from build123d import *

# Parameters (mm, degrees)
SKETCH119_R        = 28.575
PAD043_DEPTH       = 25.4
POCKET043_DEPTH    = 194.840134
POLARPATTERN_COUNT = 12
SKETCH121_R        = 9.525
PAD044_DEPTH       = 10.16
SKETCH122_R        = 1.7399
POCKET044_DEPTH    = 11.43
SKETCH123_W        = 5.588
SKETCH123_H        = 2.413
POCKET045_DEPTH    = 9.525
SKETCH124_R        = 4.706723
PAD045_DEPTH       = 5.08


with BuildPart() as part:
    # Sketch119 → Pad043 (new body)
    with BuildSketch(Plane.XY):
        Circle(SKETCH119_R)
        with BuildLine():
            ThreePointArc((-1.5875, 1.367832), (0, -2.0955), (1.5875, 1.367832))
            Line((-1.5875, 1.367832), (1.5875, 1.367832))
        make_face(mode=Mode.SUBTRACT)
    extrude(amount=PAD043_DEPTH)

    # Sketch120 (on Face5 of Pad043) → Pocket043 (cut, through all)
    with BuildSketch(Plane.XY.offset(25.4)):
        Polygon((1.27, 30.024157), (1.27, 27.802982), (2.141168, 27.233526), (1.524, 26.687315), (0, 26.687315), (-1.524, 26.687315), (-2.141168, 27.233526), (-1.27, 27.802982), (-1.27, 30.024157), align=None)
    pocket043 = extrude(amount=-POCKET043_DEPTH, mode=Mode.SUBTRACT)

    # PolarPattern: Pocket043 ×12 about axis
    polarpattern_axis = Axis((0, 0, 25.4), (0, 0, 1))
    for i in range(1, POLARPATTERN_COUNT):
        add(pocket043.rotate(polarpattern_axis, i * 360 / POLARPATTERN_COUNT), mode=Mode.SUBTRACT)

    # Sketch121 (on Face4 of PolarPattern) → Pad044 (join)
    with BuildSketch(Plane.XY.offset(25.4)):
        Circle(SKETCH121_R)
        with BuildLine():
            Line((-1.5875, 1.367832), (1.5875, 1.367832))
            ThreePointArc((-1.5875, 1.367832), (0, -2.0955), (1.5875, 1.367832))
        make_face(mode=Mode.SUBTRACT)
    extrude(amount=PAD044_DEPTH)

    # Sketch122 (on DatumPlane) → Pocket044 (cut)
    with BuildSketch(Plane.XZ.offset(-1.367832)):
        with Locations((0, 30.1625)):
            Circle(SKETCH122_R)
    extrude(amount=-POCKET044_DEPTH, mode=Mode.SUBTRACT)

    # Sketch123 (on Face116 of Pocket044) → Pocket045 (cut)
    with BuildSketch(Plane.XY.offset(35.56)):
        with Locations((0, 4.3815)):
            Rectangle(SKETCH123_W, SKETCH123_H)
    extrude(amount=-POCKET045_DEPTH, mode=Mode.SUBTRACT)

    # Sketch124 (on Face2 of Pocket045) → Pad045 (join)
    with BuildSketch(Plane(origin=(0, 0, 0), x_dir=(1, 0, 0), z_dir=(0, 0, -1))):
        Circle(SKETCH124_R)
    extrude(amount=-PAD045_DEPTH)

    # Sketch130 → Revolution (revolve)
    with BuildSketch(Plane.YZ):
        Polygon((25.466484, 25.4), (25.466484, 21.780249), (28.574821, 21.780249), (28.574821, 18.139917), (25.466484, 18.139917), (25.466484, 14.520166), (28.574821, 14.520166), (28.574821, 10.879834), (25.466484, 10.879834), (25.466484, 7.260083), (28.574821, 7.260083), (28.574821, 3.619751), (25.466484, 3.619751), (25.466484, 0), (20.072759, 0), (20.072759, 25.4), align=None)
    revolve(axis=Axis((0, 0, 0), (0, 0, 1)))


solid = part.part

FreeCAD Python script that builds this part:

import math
import FreeCAD as App
import Part
import Sketcher
Q = App.Units.Quantity

doc = App.newDocument("Part")
body = doc.addObject("PartDesign::Body", "Body")

sketch1 = body.newObject("Sketcher::SketchObject", "Sketch")
sketch1.AttachmentSupport = (doc.getObject("XY_Plane"), [""])
sketch1.MapMode = "FlatFace"
sketch1.addGeometry([
    Part.Circle(App.Vector(0, 0, 0), App.Vector(0, 0, 1), 28.6),
    Part.ArcOfCircle(Part.Circle(App.Vector(0, 0, 0), App.Vector(0, 0, 1), 2.1), math.radians(139), math.radians(401)),
    Part.LineSegment(App.Vector(-1.6, 1.4, 0), App.Vector(1.6, 1.4, 0)),
], False)
sketch1.addConstraint([
    Sketcher.Constraint("Coincident", 1, 1, 2, 1),
    Sketcher.Constraint("Coincident", 2, 2, 1, 2),
    Sketcher.Constraint("Horizontal", 2),
    Sketcher.Constraint("Coincident", 0, 3, -1, 1),
    Sketcher.Constraint("Coincident", 1, 3, -1, 1),
    Sketcher.Constraint("Diameter", 0, Q("2.25 in")),
    Sketcher.Constraint("Radius", 1, Q("0.0825 in")),
    Sketcher.Constraint("DistanceX", 2, 1, 2, 2, Q("0.125 in")),
])
pad1 = body.newObject("PartDesign::Pad", "Pad")
pad1.Profile = sketch1
pad1.Length = Q("1 in")

sketch2 = body.newObject("Sketcher::SketchObject", "Sketch001")
sketch2.AttachmentSupport = (doc.getObject("XY_Plane"), [""])
sketch2.MapMode = "FlatFace"
sketch2.AttachmentOffset = App.Placement(App.Vector(0, 0, 1 * 25.4), App.Rotation())
sketch2.addGeometry([
    Part.LineSegment(App.Vector(1.3, 27.8, 0), App.Vector(1.3, 30, 0)),
    Part.LineSegment(App.Vector(1.3, 30, 0), App.Vector(-1.3, 30, 0)),
    Part.LineSegment(App.Vector(-1.3, 30, 0), App.Vector(-1.3, 27.8, 0)),
    Part.LineSegment(App.Vector(-1.3, 27.8, 0), App.Vector(-2.1, 27.2, 0)),
    Part.LineSegment(App.Vector(-2.1, 27.2, 0), App.Vector(-1.5, 26.7, 0)),
    Part.LineSegment(App.Vector(-1.5, 26.7, 0), App.Vector(1.5, 26.7, 0)),
    Part.LineSegment(App.Vector(1.5, 26.7, 0), App.Vector(2.1, 27.2, 0)),
    Part.LineSegment(App.Vector(2.1, 27.2, 0), App.Vector(1.3, 27.8, 0)),
], False)
sketch2.addConstraint([
    Sketcher.Constraint("Coincident", 0, 2, 1, 1),
    Sketcher.Constraint("Coincident", 1, 2, 2, 1),
    Sketcher.Constraint("Coincident", 2, 2, 3, 1),
    Sketcher.Constraint("Coincident", 3, 2, 4, 1),
    Sketcher.Constraint("Coincident", 4, 2, 5, 1),
    Sketcher.Constraint("Coincident", 5, 2, 6, 1),
    Sketcher.Constraint("Coincident", 6, 2, 7, 1),
    Sketcher.Constraint("Coincident", 7, 2, 0, 1),
    Sketcher.Constraint("Vertical", 0),
    Sketcher.Constraint("Horizontal", 1),
    Sketcher.Constraint("Vertical", 2),
    Sketcher.Constraint("Horizontal", 5),
    Sketcher.Constraint("Symmetric", 3, 2, 6, 2, -2),
    Sketcher.Constraint("Symmetric", 2, 2, 7, 2, -2),
    Sketcher.Constraint("Equal", 4, 6),
    Sketcher.Constraint("DistanceX", 1, 2, 1, 1, Q("0.1 in")),
    Sketcher.Constraint("DistanceX", 5, 1, 5, 2, Q("0.12 in")),
    Sketcher.Constraint("Distance", 4, 0.824162),
    Sketcher.Constraint("DistanceY", 0, 1, 0, 2, 2.221175),
    Sketcher.Constraint("DistanceY", -1, 1, 2, 2, 27.802982),
    Sketcher.Constraint("DistanceX", 3, 2, -1, 1, 2.141168),
    Sketcher.Constraint("DistanceY", 3, 2, 1, 2, 2.790631),
])
pocket1 = body.newObject("PartDesign::Pocket", "Pocket")
pocket1.Profile = sketch2
pocket1.Type = "ThroughAll"
doc.recompute()

polarpattern = body.newObject("PartDesign::PolarPattern", "PolarPattern")
polarpattern.Originals = [pocket1]
polarpattern.Axis = (doc.getObject("Z_Axis"), [""])
polarpattern.Angle = 360
polarpattern.Occurrences = 12
body.Tip = polarpattern

sketch3 = body.newObject("Sketcher::SketchObject", "Sketch002")
sketch3.AttachmentSupport = (doc.getObject("XY_Plane"), [""])
sketch3.MapMode = "FlatFace"
sketch3.AttachmentOffset = App.Placement(App.Vector(0, 0, 1 * 25.4), App.Rotation())
sketch3.addGeometry([
    Part.Circle(App.Vector(0, 0, 0), App.Vector(0, 0, 1), 9.5),
    Part.ArcOfCircle(Part.Circle(App.Vector(0, 0, 0), App.Vector(0, 0, 1), 2.1), math.radians(139), math.radians(401)),
    Part.LineSegment(App.Vector(-1.6, 1.4, 0), App.Vector(1.6, 1.4, 0)),
], False)
sketch3.addConstraint([
    Sketcher.Constraint("Coincident", 1, 1, 2, 1),
    Sketcher.Constraint("Coincident", 2, 2, 1, 2),
    Sketcher.Constraint("Horizontal", 2),
    Sketcher.Constraint("Coincident", 0, 3, -1, 1),
    Sketcher.Constraint("Coincident", 1, 3, -1, 1),
    Sketcher.Constraint("Diameter", 0, Q("0.75 in")),
    Sketcher.Constraint("Radius", 1, Q("0.0825 in")),
    Sketcher.Constraint("DistanceX", 2, 1, 2, 2, Q("0.125 in")),
])
pad2 = body.newObject("PartDesign::Pad", "Pad001")
pad2.Profile = sketch3
pad2.Length = Q("0.4 in")

sketch4 = body.newObject("Sketcher::SketchObject", "Sketch003")
sketch4.AttachmentSupport = (doc.getObject("XZ_Plane"), [""])
sketch4.MapMode = "FlatFace"
sketch4.AttachmentOffset = App.Placement(App.Vector(0, 0, -1.367832), App.Rotation())
sketch4.addGeometry(Part.Circle(App.Vector(0, 30.2, 0), App.Vector(0, 0, 1), 1.7), False)
sketch4.addConstraint([
    Sketcher.Constraint("PointOnObject", 0, 3, -2),
    Sketcher.Constraint("Diameter", 0, Q("0.137 in")),
    Sketcher.Constraint("DistanceY", -1, 1, 0, 3, Q("1.1875 in")),
])
pocket2 = body.newObject("PartDesign::Pocket", "Pocket001")
pocket2.Profile = sketch4
pocket2.Length = Q("0.45 in")

sketch5 = body.newObject("Sketcher::SketchObject", "Sketch004")
sketch5.AttachmentSupport = (doc.getObject("XY_Plane"), [""])
sketch5.MapMode = "FlatFace"
sketch5.AttachmentOffset = App.Placement(App.Vector(0, 0, 1.4 * 25.4), App.Rotation())
sketch5.addGeometry([
    Part.LineSegment(App.Vector(-2.8, 5.6, 0), App.Vector(-2.8, 3.2, 0)),
    Part.LineSegment(App.Vector(-2.8, 3.2, 0), App.Vector(2.8, 3.2, 0)),
    Part.LineSegment(App.Vector(2.8, 3.2, 0), App.Vector(2.8, 5.6, 0)),
    Part.LineSegment(App.Vector(2.8, 5.6, 0), App.Vector(-2.8, 5.6, 0)),
], False)
sketch5.addConstraint([
    Sketcher.Constraint("Coincident", 0, 2, 1, 1),
    Sketcher.Constraint("Coincident", 1, 2, 2, 1),
    Sketcher.Constraint("Coincident", 2, 2, 3, 1),
    Sketcher.Constraint("Coincident", 3, 2, 0, 1),
    Sketcher.Constraint("Vertical", 0),
    Sketcher.Constraint("Horizontal", 1),
    Sketcher.Constraint("Vertical", 2),
    Sketcher.Constraint("Horizontal", 3),
    Sketcher.Constraint("DistanceX", 1, 1, 1, 2, Q("0.22 in")),
    Sketcher.Constraint("DistanceY", 0, 2, 0, 1, Q("0.095 in")),
    Sketcher.Constraint("DistanceX", 0, 2, -1, 1, Q("0.11 in")),
    Sketcher.Constraint("DistanceY", -1, 1, 2, 2, Q("0.22 in")),
])
pocket3 = body.newObject("PartDesign::Pocket", "Pocket002")
pocket3.Profile = sketch5
pocket3.Length = Q("0.375 in")

sketch6 = body.newObject("Sketcher::SketchObject", "Sketch005")
sketch6.AttachmentSupport = (doc.getObject("XY_Plane"), [""])
sketch6.MapMode = "FlatFace"
sketch6.addGeometry(Part.Circle(App.Vector(0, 0, 0), App.Vector(0, 0, 1), 4.7), False)
sketch6.addConstraint([
    Sketcher.Constraint("Coincident", 0, 3, -1, 1),
    Sketcher.Constraint("Diameter", 0, 9.413446),
])
pad3 = body.newObject("PartDesign::Pad", "Pad002")
pad3.Profile = sketch6
pad3.Length = Q("0.2 in")

sketch7 = body.newObject("Sketcher::SketchObject", "Sketch006")
sketch7.AttachmentSupport = (doc.getObject("YZ_Plane"), [""])
sketch7.MapMode = "FlatFace"
sketch7.addGeometry([
    Part.LineSegment(App.Vector(25.5, 21.8, 0), App.Vector(25.5, 25.4, 0)),
    Part.LineSegment(App.Vector(25.5, 25.4, 0), App.Vector(20.1, 25.4, 0)),
    Part.LineSegment(App.Vector(20.1, 25.4, 0), App.Vector(20.1, 0, 0)),
    Part.LineSegment(App.Vector(20.1, 0, 0), App.Vector(25.5, 0, 0)),
    Part.LineSegment(App.Vector(25.5, 0, 0), App.Vector(25.5, 3.6, 0)),
    Part.LineSegment(App.Vector(25.5, 3.6, 0), App.Vector(28.6, 3.6, 0)),
    Part.LineSegment(App.Vector(28.6, 3.6, 0), App.Vector(28.6, 7.3, 0)),
    Part.LineSegment(App.Vector(28.6, 7.3, 0), App.Vector(25.5, 7.3, 0)),
    Part.LineSegment(App.Vector(25.5, 7.3, 0), App.Vector(25.5, 10.9, 0)),
    Part.LineSegment(App.Vector(25.5, 10.9, 0), App.Vector(28.6, 10.9, 0)),
    Part.LineSegment(App.Vector(28.6, 10.9, 0), App.Vector(28.6, 14.5, 0)),
    Part.LineSegment(App.Vector(28.6, 14.5, 0), App.Vector(25.5, 14.5, 0)),
    Part.LineSegment(App.Vector(25.5, 14.5, 0), App.Vector(25.5, 18.1, 0)),
    Part.LineSegment(App.Vector(25.5, 18.1, 0), App.Vector(28.6, 18.1, 0)),
    Part.LineSegment(App.Vector(28.6, 18.1, 0), App.Vector(28.6, 21.8, 0)),
    Part.LineSegment(App.Vector(28.6, 21.8, 0), App.Vector(25.5, 21.8, 0)),
], False)
sketch7.addConstraint([
    Sketcher.Constraint("Coincident", 0, 2, 1, 1),
    Sketcher.Constraint("Coincident", 1, 2, 2, 1),
    Sketcher.Constraint("Coincident", 2, 2, 3, 1),
    Sketcher.Constraint("Coincident", 3, 2, 4, 1),
    Sketcher.Constraint("Coincident", 4, 2, 5, 1),
    Sketcher.Constraint("Coincident", 5, 2, 6, 1),
    Sketcher.Constraint("Coincident", 6, 2, 7, 1),
    Sketcher.Constraint("Coincident", 7, 2, 8, 1),
    Sketcher.Constraint("Coincident", 8, 2, 9, 1),
    Sketcher.Constraint("Coincident", 9, 2, 10, 1),
    Sketcher.Constraint("Coincident", 10, 2, 11, 1),
    Sketcher.Constraint("Coincident", 11, 2, 12, 1),
    Sketcher.Constraint("Coincident", 12, 2, 13, 1),
    Sketcher.Constraint("Coincident", 13, 2, 14, 1),
    Sketcher.Constraint("Coincident", 14, 2, 15, 1),
    Sketcher.Constraint("Coincident", 15, 2, 0, 1),
    Sketcher.Constraint("Vertical", 0),
    Sketcher.Constraint("Horizontal", 1),
    Sketcher.Constraint("Vertical", 2),
    Sketcher.Constraint("Horizontal", 3),
    Sketcher.Constraint("Vertical", 4),
    Sketcher.Constraint("Horizontal", 5),
    Sketcher.Constraint("Vertical", 6),
    Sketcher.Constraint("Horizontal", 7),
    Sketcher.Constraint("Vertical", 8),
    Sketcher.Constraint("Horizontal", 9),
    Sketcher.Constraint("Vertical", 10),
    Sketcher.Constraint("Horizontal", 11),
    Sketcher.Constraint("Vertical", 12),
    Sketcher.Constraint("Horizontal", 13),
    Sketcher.Constraint("Vertical", 14),
    Sketcher.Constraint("Horizontal", 15),
    Sketcher.Constraint("PointOnObject", 2, 2, -1),
    Sketcher.Constraint("Vertical", 0, 2, 3, 2),
    Sketcher.Constraint("Vertical", 4, 2, 7, 2),
    Sketcher.Constraint("Vertical", 6, 2, 9, 2),
    Sketcher.Constraint("Vertical", 8, 2, 11, 2),
    Sketcher.Constraint("Vertical", 10, 2, 13, 2),
    Sketcher.Constraint("Equal", 0, 4),
    Sketcher.Constraint("Equal", 4, 8),
    Sketcher.Constraint("Equal", 6, 10),
    Sketcher.Constraint("Equal", 8, 12),
    Sketcher.Constraint("Equal", 10, 14),
    Sketcher.Constraint("DistanceY", 2, 2, 2, 1, Q("1 in")),
    Sketcher.Constraint("DistanceY", 0, 1, 0, 2, 3.619751),
    Sketcher.Constraint("DistanceX", 1, 2, 1, 1, 5.393725),
    Sketcher.Constraint("DistanceX", 5, 1, 5, 2, 3.108337),
    Sketcher.Constraint("DistanceX", -1, 1, 1, 2, 20.072759),
])
revolution = body.newObject("PartDesign::Revolution", "Revolution")
revolution.Profile = sketch7
revolution.ReferenceAxis = (sketch7, ["V_Axis"])
revolution.Angle = 360

doc.recompute()
